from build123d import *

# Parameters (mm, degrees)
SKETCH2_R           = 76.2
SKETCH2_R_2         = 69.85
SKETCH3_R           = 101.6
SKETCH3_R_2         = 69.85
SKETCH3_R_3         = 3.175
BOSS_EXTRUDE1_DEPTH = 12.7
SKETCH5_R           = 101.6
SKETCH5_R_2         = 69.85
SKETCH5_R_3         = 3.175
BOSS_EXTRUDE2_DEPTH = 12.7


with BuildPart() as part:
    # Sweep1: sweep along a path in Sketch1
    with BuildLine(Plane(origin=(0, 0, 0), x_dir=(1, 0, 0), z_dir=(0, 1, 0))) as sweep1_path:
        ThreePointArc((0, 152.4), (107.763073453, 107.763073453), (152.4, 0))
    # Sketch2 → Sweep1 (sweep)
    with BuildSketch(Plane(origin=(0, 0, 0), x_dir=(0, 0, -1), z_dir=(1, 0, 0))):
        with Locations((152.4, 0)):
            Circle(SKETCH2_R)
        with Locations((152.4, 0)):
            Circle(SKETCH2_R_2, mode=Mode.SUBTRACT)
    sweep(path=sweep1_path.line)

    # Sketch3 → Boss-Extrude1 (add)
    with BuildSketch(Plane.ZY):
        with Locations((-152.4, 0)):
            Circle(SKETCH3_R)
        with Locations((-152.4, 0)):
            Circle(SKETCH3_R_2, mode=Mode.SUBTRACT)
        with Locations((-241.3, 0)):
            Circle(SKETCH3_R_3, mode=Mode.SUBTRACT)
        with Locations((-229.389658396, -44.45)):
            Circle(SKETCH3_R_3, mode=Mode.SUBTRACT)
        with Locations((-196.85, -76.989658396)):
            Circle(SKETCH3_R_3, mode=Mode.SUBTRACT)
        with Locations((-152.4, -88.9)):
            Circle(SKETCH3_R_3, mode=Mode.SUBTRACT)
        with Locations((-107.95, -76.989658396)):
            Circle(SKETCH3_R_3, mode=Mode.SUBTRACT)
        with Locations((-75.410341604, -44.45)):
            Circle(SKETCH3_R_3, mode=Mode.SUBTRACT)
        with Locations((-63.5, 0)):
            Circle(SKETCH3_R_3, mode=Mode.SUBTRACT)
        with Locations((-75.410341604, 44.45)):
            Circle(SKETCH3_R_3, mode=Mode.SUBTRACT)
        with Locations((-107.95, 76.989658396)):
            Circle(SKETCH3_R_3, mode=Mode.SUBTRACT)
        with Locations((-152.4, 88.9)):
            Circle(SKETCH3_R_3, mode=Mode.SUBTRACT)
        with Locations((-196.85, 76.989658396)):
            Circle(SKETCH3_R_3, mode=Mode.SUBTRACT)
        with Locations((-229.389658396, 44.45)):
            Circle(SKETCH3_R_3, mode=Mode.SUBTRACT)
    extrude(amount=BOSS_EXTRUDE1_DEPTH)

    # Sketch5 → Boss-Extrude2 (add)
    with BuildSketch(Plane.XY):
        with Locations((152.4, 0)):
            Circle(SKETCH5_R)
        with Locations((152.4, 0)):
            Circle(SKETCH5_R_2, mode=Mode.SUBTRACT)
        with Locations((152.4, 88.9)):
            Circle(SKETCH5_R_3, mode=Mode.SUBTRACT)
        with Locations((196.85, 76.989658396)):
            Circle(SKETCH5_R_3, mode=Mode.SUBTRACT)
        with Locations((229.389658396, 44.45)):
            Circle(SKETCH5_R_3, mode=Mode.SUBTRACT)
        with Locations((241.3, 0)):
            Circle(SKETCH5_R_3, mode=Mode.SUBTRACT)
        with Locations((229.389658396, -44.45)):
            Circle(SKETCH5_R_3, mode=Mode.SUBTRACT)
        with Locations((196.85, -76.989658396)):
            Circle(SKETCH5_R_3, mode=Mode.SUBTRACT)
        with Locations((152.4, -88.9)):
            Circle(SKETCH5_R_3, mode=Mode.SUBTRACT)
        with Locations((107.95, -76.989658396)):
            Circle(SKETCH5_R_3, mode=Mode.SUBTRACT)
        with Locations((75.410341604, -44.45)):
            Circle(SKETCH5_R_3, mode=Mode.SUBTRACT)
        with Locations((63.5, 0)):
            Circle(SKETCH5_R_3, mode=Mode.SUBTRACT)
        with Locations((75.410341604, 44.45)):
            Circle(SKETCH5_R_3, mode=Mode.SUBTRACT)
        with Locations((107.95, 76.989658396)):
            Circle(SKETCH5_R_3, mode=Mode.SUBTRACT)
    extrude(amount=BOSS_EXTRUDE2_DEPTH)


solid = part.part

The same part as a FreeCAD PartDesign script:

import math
import FreeCAD as App
import Part
import Sketcher
from FreeCAD import Vector
Q = App.Units.Quantity

doc = App.newDocument("Part")
body = doc.addObject("PartDesign::Body", "Body")

# Sketch on YZ plane
sketch1 = doc.addObject("Sketcher::SketchObject", "Sketch")
body.addObject(sketch1)
sketch1.AttachmentSupport = (doc.YZ_Plane, [""])
sketch1.MapMode = "FlatFace"
sketch1.addGeometry([
    Part.Circle(Vector(0, -152, 0), Vector(0, 0, 1), 76),
    Part.Circle(Vector(0, -152, 0), Vector(0, 0, 1), 70),
], False)
sketch1.addConstraint([
    Sketcher.Constraint("Coincident", 1, 3, 0, 3),
    Sketcher.Constraint("PointOnObject", 0, 3, -2),
    Sketcher.Constraint("Diameter", 0, Q("6 in")),
    Sketcher.Constraint("Diameter", 1, Q("5.5 in")),
    Sketcher.Constraint("DistanceY", 0, 3, -1, 1, Q("6 in")),
])

# Sketch on XZ plane
sketch2 = doc.addObject("Sketcher::SketchObject", "Sketch001")
body.addObject(sketch2)
sketch2.AttachmentSupport = (doc.XZ_Plane, [""])
sketch2.MapMode = "FlatFace"
sketch2.addGeometry(Part.ArcOfCircle(Part.Circle(Vector(0, 0, 0), Vector(0, 0, 1), 152), math.radians(-90), math.radians(0)), False)
sketch2.addConstraint([
    Sketcher.Constraint("Coincident", 0, 3, -1, 1),
    Sketcher.Constraint("PointOnObject", 0, 1, -2),
    Sketcher.Constraint("PointOnObject", 0, 2, -1),
    Sketcher.Constraint("Radius", 0, Q("6 in")),
])
doc.recompute()

additivepipe = doc.addObject("PartDesign::AdditivePipe", "AdditivePipe")
body.addObject(additivepipe)
additivepipe.Profile = sketch1
additivepipe.Spine = (sketch2, ["Edge1"])

# Sketch on YZ plane
sketch3 = doc.addObject("Sketcher::SketchObject", "Sketch002")
body.addObject(sketch3)
sketch3.AttachmentSupport = (doc.YZ_Plane, [""])
sketch3.MapMode = "FlatFace"
sketch3.addGeometry([
    Part.Circle(Vector(0, -152.4, 0), Vector(0, 0, 1), 101.6),  # 0
    Part.Circle(Vector(-77, -196.8, 0), Vector(0, 0, 1), 3.2),  # 1
    Part.Circle(Vector(-44.5, -229.4, 0), Vector(0, 0, 1), 3.2),  # 2
    Part.Circle(Vector(-88.9, -152.4, 0), Vector(0, 0, 1), 3.2),  # 3
    Part.Circle(Vector(-77, -108, 0), Vector(0, 0, 1), 3.2),  # 4
    Part.Circle(Vector(-44.5, -75.4, 0), Vector(0, 0, 1), 3.2),  # 5
    Part.Circle(Vector(0, -241.3, 0), Vector(0, 0, 1), 3.2),  # 6
    Part.Circle(Vector(44.5, -229.4, 0), Vector(0, 0, 1), 3.2),  # 7
    Part.Circle(Vector(77, -196.8, 0), Vector(0, 0, 1), 3.2),  # 8
    Part.Circle(Vector(0, -152.4, 0), Vector(0, 0, 1), 69.8),  # 9
    Part.Circle(Vector(0, -63.5, 0), Vector(0, 0, 1), 3.2),  # 10
    Part.Circle(Vector(44.5, -75.4, 0), Vector(0, 0, 1), 3.2),  # 11
    Part.Circle(Vector(88.9, -152.4, 0), Vector(0, 0, 1), 3.2),  # 12
    Part.Circle(Vector(77, -108, 0), Vector(0, 0, 1), 3.2),  # 13
], False)
sketch3.addConstraint([
    Sketcher.Constraint("Coincident", 9, 3, 0, 3),
    Sketcher.Constraint("Equal", 1, 2),
    Sketcher.Constraint("Equal", 2, 3),
    Sketcher.Constraint("Equal", 3, 4),
    Sketcher.Constraint("Equal", 4, 5),
    Sketcher.Constraint("Equal", 5, 6),
    Sketcher.Constraint("Equal", 6, 7),
    Sketcher.Constraint("Equal", 7, 8),
    Sketcher.Constraint("Equal", 8, 10),
    Sketcher.Constraint("Equal", 10, 11),
    Sketcher.Constraint("Equal", 11, 12),
    Sketcher.Constraint("Equal", 12, 13),
    Sketcher.Constraint("Symmetric", 2, 3, 7, 3, -2),
    Sketcher.Constraint("Symmetric", 1, 3, 8, 3, -2),
    Sketcher.Constraint("Symmetric", 5, 3, 11, 3, -2),
    Sketcher.Constraint("Symmetric", 3, 3, 12, 3, -2),
    Sketcher.Constraint("Symmetric", 4, 3, 13, 3, -2),
    Sketcher.Constraint("PointOnObject", 0, 3, -2),
    Sketcher.Constraint("PointOnObject", 6, 3, -2),
    Sketcher.Constraint("PointOnObject", 10, 3, -2),
    Sketcher.Constraint("Horizontal", 0, 3, 3, 3),
    Sketcher.Constraint("Vertical", 1, 3, 4, 3),
    Sketcher.Constraint("Vertical", 2, 3, 5, 3),
    Sketcher.Constraint("Diameter", 0, Q("8 in")),
    Sketcher.Constraint("Diameter", 9, Q("5.5 in")),
    Sketcher.Constraint("Diameter", 1, Q("0.25 in")),
    Sketcher.Constraint("DistanceY", 0, 3, -1, 1, Q("6 in")),
    Sketcher.Constraint("DistanceX", 3, 3, -1, 1, Q("3.5 in")),
    Sketcher.Constraint("DistanceY", 6, 3, -1, 1, Q("9.5 in")),
    Sketcher.Constraint("DistanceY", 10, 3, -1, 1, Q("2.5 in")),
    Sketcher.Constraint("DistanceY", 1, 3, 4, 3, Q("3.5 in")),
    Sketcher.Constraint("DistanceX", 2, 3, 7, 3, Q("3.5 in")),
    Sketcher.Constraint("DistanceY", 1, 3, -1, 1, Q("7.75 in")),
    Sketcher.Constraint("DistanceX", 1, 3, -1, 1, Q("76.989658 mm")),
    Sketcher.Constraint("DistanceY", 2, 3, -1, 1, Q("229.389658 mm")),
    Sketcher.Constraint("DistanceY", 5, 3, -1, 1, Q("75.410342 mm")),
])
pad1 = doc.addObject("PartDesign::Pad", "Pad")
body.addObject(pad1)
pad1.Profile = sketch3
pad1.Length = Q("0.5 in")
pad1.Reversed = True

# Sketch on XY plane
sketch4 = doc.addObject("Sketcher::SketchObject", "Sketch003")
body.addObject(sketch4)
sketch4.AttachmentSupport = (doc.XY_Plane, [""])
sketch4.MapMode = "FlatFace"
sketch4.addGeometry([
    Part.Circle(Vector(152.4, 0, 0), Vector(0, 0, 1), 101.6),  # 0
    Part.Circle(Vector(108, -77, 0), Vector(0, 0, 1), 3.2),  # 1
    Part.Circle(Vector(75.4, -44.5, 0), Vector(0, 0, 1), 3.2),  # 2
    Part.Circle(Vector(152.4, -88.9, 0), Vector(0, 0, 1), 3.2),  # 3
    Part.Circle(Vector(196.8, -77, 0), Vector(0, 0, 1), 3.2),  # 4
    Part.Circle(Vector(229.4, -44.5, 0), Vector(0, 0, 1), 3.2),  # 5
    Part.Circle(Vector(63.5, 0, 0), Vector(0, 0, 1), 3.2),  # 6
    Part.Circle(Vector(75.4, 44.5, 0), Vector(0, 0, 1), 3.2),  # 7
    Part.Circle(Vector(108, 77, 0), Vector(0, 0, 1), 3.2),  # 8
    Part.Circle(Vector(152.4, 0, 0), Vector(0, 0, 1), 69.8),  # 9
    Part.Circle(Vector(241.3, 0, 0), Vector(0, 0, 1), 3.2),  # 10
    Part.Circle(Vector(229.4, 44.5, 0), Vector(0, 0, 1), 3.2),  # 11
    Part.Circle(Vector(152.4, 88.9, 0), Vector(0, 0, 1), 3.2),  # 12
    Part.Circle(Vector(196.8, 77, 0), Vector(0, 0, 1), 3.2),  # 13
], False)
sketch4.addConstraint([
    Sketcher.Constraint("Coincident", 9, 3, 0, 3),
    Sketcher.Constraint("Equal", 1, 2),
    Sketcher.Constraint("Equal", 2, 3),
    Sketcher.Constraint("Equal", 3, 4),
    Sketcher.Constraint("Equal", 4, 5),
    Sketcher.Constraint("Equal", 5, 6),
    Sketcher.Constraint("Equal", 6, 7),
    Sketcher.Constraint("Equal", 7, 8),
    Sketcher.Constraint("Equal", 8, 10),
    Sketcher.Constraint("Equal", 10, 11),
    Sketcher.Constraint("Equal", 11, 12),
    Sketcher.Constraint("Equal", 12, 13),
    Sketcher.Constraint("Symmetric", 2, 3, 7, 3, -1),
    Sketcher.Constraint("Symmetric", 1, 3, 8, 3, -1),
    Sketcher.Constraint("Symmetric", 5, 3, 11, 3, -1),
    Sketcher.Constraint("Symmetric", 3, 3, 12, 3, -1),
    Sketcher.Constraint("Symmetric", 4, 3, 13, 3, -1),
    Sketcher.Constraint("PointOnObject", 0, 3, -1),
    Sketcher.Constraint("PointOnObject", 6, 3, -1),
    Sketcher.Constraint("PointOnObject", 10, 3, -1),
    Sketcher.Constraint("Horizontal", 1, 3, 4, 3),
    Sketcher.Constraint("Horizontal", 2, 3, 5, 3),
    Sketcher.Constraint("Vertical", 0, 3, 3, 3),
    Sketcher.Constraint("Diameter", 0, Q("8 in")),
    Sketcher.Constraint("Diameter", 9, Q("5.5 in")),
    Sketcher.Constraint("Diameter", 1, Q("0.25 in")),
    Sketcher.Constraint("DistanceX", -1, 1, 0, 3, Q("6 in")),
    Sketcher.Constraint("DistanceY", 3, 3, -1, 1, Q("3.5 in")),
    Sketcher.Constraint("DistanceX", -1, 1, 6, 3, Q("2.5 in")),
    Sketcher.Constraint("DistanceX", -1, 1, 10, 3, Q("9.5 in")),
    Sketcher.Constraint("DistanceX", 1, 3, 4, 3, Q("3.5 in")),
    Sketcher.Constraint("DistanceY", 2, 3, 7, 3, Q("3.5 in")),
    Sketcher.Constraint("DistanceX", -1, 1, 1, 3, Q("4.25 in")),
    Sketcher.Constraint("DistanceY", 1, 3, -1, 1, Q("76.989658 mm")),
    Sketcher.Constraint("DistanceX", -1, 1, 2, 3, Q("75.410342 mm")),
    Sketcher.Constraint("DistanceX", -1, 1, 5, 3, Q("229.389658 mm")),
])
pad2 = doc.addObject("PartDesign::Pad", "Pad001")
body.addObject(pad2)
pad2.Profile = sketch4
pad2.Length = Q("0.5 in")

doc.recompute()
